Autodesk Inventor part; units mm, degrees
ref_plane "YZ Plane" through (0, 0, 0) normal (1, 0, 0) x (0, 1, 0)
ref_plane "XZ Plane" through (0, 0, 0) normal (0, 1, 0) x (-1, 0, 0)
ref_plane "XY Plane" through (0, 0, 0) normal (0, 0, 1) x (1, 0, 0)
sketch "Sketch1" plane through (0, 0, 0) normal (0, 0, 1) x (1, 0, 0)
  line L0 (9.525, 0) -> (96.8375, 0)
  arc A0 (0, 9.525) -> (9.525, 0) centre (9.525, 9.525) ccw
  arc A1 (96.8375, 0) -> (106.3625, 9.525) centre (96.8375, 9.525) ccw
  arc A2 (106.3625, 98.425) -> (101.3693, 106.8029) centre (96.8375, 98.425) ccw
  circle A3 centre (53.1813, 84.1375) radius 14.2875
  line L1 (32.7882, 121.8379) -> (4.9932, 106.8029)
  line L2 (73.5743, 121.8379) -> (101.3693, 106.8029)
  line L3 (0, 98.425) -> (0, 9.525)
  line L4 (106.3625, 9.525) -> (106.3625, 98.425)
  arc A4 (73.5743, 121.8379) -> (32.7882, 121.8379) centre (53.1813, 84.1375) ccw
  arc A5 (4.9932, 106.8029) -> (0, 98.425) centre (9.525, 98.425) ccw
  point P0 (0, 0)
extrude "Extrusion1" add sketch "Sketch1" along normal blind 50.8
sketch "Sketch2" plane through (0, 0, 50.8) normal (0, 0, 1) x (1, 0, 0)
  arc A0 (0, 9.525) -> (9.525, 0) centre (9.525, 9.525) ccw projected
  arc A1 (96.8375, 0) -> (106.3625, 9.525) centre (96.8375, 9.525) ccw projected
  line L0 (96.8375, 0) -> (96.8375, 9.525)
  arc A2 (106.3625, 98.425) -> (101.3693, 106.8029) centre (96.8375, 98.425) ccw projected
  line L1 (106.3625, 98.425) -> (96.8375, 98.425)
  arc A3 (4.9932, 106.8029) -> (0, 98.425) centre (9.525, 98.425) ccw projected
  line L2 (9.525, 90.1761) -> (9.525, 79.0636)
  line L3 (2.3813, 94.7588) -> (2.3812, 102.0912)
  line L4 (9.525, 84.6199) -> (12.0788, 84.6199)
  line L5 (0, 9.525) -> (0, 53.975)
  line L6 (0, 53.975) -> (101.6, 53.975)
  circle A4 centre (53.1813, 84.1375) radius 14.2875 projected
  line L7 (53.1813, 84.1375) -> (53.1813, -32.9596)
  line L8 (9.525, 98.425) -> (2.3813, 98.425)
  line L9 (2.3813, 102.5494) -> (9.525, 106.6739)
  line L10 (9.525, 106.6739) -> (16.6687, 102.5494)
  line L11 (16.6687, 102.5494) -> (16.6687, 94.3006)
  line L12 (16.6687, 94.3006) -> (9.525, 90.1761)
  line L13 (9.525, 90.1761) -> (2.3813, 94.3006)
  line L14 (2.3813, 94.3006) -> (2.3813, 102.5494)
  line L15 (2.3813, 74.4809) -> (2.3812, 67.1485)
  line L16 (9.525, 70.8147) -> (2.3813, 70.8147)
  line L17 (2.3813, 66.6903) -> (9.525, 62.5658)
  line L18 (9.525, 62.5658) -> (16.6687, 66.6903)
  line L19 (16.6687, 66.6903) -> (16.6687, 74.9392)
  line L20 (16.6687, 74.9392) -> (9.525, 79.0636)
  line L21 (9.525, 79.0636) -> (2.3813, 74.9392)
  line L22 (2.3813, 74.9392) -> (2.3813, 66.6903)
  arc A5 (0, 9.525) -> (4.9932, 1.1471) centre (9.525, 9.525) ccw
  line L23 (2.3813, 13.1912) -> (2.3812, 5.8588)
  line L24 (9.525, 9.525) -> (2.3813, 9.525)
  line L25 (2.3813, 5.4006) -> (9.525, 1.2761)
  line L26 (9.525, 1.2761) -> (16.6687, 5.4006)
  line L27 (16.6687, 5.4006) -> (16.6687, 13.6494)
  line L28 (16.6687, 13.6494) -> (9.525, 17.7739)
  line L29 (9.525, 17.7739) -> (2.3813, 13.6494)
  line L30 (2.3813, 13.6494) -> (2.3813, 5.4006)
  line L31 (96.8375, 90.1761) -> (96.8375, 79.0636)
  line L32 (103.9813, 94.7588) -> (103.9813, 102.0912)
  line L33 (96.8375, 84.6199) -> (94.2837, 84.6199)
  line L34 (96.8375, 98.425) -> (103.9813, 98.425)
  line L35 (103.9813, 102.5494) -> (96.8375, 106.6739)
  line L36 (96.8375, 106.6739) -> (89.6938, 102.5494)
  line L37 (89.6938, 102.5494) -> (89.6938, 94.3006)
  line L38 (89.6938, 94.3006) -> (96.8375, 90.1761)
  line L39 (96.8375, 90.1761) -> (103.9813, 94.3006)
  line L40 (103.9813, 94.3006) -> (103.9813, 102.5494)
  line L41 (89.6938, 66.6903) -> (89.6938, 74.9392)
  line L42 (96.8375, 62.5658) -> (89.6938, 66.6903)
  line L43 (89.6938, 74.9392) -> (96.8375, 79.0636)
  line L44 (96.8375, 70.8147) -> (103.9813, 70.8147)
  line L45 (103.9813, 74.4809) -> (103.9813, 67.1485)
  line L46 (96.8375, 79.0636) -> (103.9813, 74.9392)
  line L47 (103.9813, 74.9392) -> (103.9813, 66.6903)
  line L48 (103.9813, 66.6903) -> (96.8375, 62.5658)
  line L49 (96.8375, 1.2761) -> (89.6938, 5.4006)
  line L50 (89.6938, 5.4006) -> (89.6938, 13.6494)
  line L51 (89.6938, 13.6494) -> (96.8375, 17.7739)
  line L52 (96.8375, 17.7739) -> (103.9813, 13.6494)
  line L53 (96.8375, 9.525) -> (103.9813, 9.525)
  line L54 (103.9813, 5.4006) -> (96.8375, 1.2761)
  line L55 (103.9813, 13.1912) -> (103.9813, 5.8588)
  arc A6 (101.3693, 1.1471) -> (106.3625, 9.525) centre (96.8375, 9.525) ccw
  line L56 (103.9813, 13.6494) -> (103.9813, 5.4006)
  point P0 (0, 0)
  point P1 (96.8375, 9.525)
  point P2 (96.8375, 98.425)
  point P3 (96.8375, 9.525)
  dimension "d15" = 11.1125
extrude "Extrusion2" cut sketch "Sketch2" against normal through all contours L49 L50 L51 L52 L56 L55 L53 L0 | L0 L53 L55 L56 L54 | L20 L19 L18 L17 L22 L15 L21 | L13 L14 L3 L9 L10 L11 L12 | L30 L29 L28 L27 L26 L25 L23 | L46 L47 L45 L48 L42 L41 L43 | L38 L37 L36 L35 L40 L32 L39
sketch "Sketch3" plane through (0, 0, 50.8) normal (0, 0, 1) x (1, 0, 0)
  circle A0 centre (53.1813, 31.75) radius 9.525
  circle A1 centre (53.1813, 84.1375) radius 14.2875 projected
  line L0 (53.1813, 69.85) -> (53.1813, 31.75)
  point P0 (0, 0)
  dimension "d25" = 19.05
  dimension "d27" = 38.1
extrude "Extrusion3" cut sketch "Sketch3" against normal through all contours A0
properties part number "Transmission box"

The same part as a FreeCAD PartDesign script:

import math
import FreeCAD as App
import Part
import Sketcher

V = App.Vector
Q = App.Units.Quantity

doc = App.newDocument("Part")
body = doc.addObject("PartDesign::Body", "Body")

# Sketch on XY plane
sketch1 = doc.addObject("Sketcher::SketchObject", "Sketch")
body.addObject(sketch1)
sketch1.AttachmentSupport = (doc.XY_Plane, [""])
sketch1.MapMode = "FlatFace"
sketch1.addGeometry([
    Part.ArcOfCircle(Part.Circle(V(10, 10, 0), V(0, 0, 1), 10), math.radians(180), math.radians(270)),  # 0
    Part.LineSegment(V(10, 0, 0), V(97, 0, 0)),  # 1
    Part.ArcOfCircle(Part.Circle(V(97, 10, 0), V(0, 0, 1), 10), math.radians(-90), math.radians(0)),  # 2
    Part.LineSegment(V(106, 10, 0), V(106, 98, 0)),  # 3
    Part.ArcOfCircle(Part.Circle(V(97, 98, 0), V(0, 0, 1), 10), math.radians(0), math.radians(62)),  # 4
    Part.LineSegment(V(101, 107, 0), V(74, 122, 0)),  # 5
    Part.ArcOfCircle(Part.Circle(V(53, 84, 0), V(0, 0, 1), 43), math.radians(62), math.radians(118)),  # 6
    Part.LineSegment(V(33, 122, 0), V(5, 107, 0)),  # 7
    Part.ArcOfCircle(Part.Circle(V(10, 98, 0), V(0, 0, 1), 10), math.radians(118), math.radians(180)),  # 8
    Part.LineSegment(V(0, 98, 0), V(0, 10, 0)),  # 9
    Part.Circle(V(53, 84, 0), V(0, 0, 1), 14),  # 10
], False)
sketch1.addConstraint([
    Sketcher.Constraint("Tangent", 0, 2, 1, 1),
    Sketcher.Constraint("Tangent", 1, 2, 2, 1),
    Sketcher.Constraint("Tangent", 2, 2, 3, 1),
    Sketcher.Constraint("Tangent", 3, 2, 4, 1),
    Sketcher.Constraint("Tangent", 4, 2, 5, 1),
    Sketcher.Constraint("Tangent", 5, 2, 6, 1),
    Sketcher.Constraint("Tangent", 6, 2, 7, 1),
    Sketcher.Constraint("Tangent", 7, 2, 8, 1),
    Sketcher.Constraint("Tangent", 8, 2, 9, 1),
    Sketcher.Constraint("Tangent", 9, 2, 0, 1),
    Sketcher.Constraint("Horizontal", 1),
    Sketcher.Constraint("Vertical", 3),
    Sketcher.Constraint("Vertical", 9),
    Sketcher.Constraint("Coincident", 10, 3, 6, 3),
    Sketcher.Constraint("Equal", 0, 2),
    Sketcher.Constraint("Equal", 2, 4),
    Sketcher.Constraint("Equal", 4, 8),
    Sketcher.Constraint("PointOnObject", 0, 2, -1),
    Sketcher.Constraint("PointOnObject", 8, 2, -2),
    Sketcher.Constraint("Horizontal", 4, 3, 8, 3),
    Sketcher.Constraint("Horizontal", 5, 2, 6, 2),
    Sketcher.Constraint("Diameter", 10, Q("1.125 in")),
    Sketcher.Constraint("DistanceY", 3, 1, 3, 2, Q("3.5 in")),
    Sketcher.Constraint("Radius", 0, Q("0.375 in")),
    Sketcher.Constraint("Radius", 6, Q("1.6875 in")),
    Sketcher.Constraint("DistanceX", 1, 1, 1, 2, Q("3.4375 in")),
    Sketcher.Constraint("Angle", 5, Q("151.59 deg")),
])
pad1 = doc.addObject("PartDesign::Pad", "Pad")
body.addObject(pad1)
pad1.Profile = sketch1
pad1.Length = Q("2 in")

# Sketch on XY plane
sketch2 = doc.addObject("Sketcher::SketchObject", "Sketch001")
body.addObject(sketch2)
sketch2.AttachmentSupport = (doc.XY_Plane, [""])
sketch2.MapMode = "FlatFace"
sketch2.AttachmentOffset = App.Placement(V(0, 0, 2 * 25.4), App.Rotation())
sketch2.addGeometry([
    Part.LineSegment(V(89.69, 5.4, 0), V(96.84, 1.28, 0)),  # 0
    Part.LineSegment(V(96.84, 1.28, 0), V(103.98, 5.4, 0)),  # 1
    Part.LineSegment(V(103.98, 5.4, 0), V(103.98, 13.65, 0)),  # 2
    Part.LineSegment(V(103.98, 13.65, 0), V(96.84, 17.77, 0)),  # 3
    Part.LineSegment(V(96.84, 17.77, 0), V(89.69, 13.65, 0)),  # 4
    Part.LineSegment(V(89.69, 13.65, 0), V(89.69, 5.4, 0)),  # 5
    Part.LineSegment(V(16.67, 74.94, 0), V(9.53, 79.06, 0)),  # 6
    Part.LineSegment(V(9.53, 79.06, 0), V(2.38, 74.94, 0)),  # 7
    Part.LineSegment(V(2.38, 74.94, 0), V(2.38, 74.48, 0)),  # 8
    Part.LineSegment(V(2.38, 74.48, 0), V(2.38, 67.15, 0)),  # 9
    Part.LineSegment(V(2.38, 67.15, 0), V(2.38, 66.69, 0)),  # 10
    Part.LineSegment(V(2.38, 66.69, 0), V(9.53, 62.57, 0)),  # 11
    Part.LineSegment(V(9.53, 62.57, 0), V(16.67, 66.69, 0)),  # 12
    Part.LineSegment(V(16.67, 66.69, 0), V(16.67, 74.94, 0)),  # 13
    Part.LineSegment(V(2.38, 94.3, 0), V(9.53, 90.18, 0)),  # 14
    Part.LineSegment(V(9.53, 90.18, 0), V(16.67, 94.3, 0)),  # 15
    Part.LineSegment(V(16.67, 94.3, 0), V(16.67, 102.55, 0)),  # 16
    Part.LineSegment(V(16.67, 102.55, 0), V(9.53, 106.67, 0)),  # 17
    Part.LineSegment(V(9.53, 106.67, 0), V(2.38, 102.55, 0)),  # 18
    Part.LineSegment(V(2.38, 102.55, 0), V(2.38, 102.09, 0)),  # 19
    Part.LineSegment(V(2.38, 102.09, 0), V(2.38, 94.76, 0)),  # 20
    Part.LineSegment(V(2.38, 94.76, 0), V(2.38, 94.3, 0)),  # 21
    Part.LineSegment(V(2.38, 13.65, 0), V(2.38, 13.19, 0)),  # 22
    Part.LineSegment(V(2.38, 13.19, 0), V(2.38, 5.86, 0)),  # 23
    Part.LineSegment(V(2.38, 5.86, 0), V(2.38, 5.4, 0)),  # 24
    Part.LineSegment(V(2.38, 5.4, 0), V(9.53, 1.28, 0)),  # 25
    Part.LineSegment(V(9.53, 1.28, 0), V(16.67, 5.4, 0)),  # 26
    Part.LineSegment(V(16.67, 5.4, 0), V(16.67, 13.65, 0)),  # 27
    Part.LineSegment(V(16.67, 13.65, 0), V(9.53, 17.77, 0)),  # 28
    Part.LineSegment(V(9.53, 17.77, 0), V(2.38, 13.65, 0)),  # 29
    Part.LineSegment(V(103.98, 74.94, 0), V(96.84, 79.06, 0)),  # 30
    Part.LineSegment(V(96.84, 79.06, 0), V(89.69, 74.94, 0)),  # 31
    Part.LineSegment(V(89.69, 74.94, 0), V(89.69, 66.69, 0)),  # 32
    Part.LineSegment(V(89.69, 66.69, 0), V(96.84, 62.57, 0)),  # 33
    Part.LineSegment(V(96.84, 62.57, 0), V(103.98, 66.69, 0)),  # 34
    Part.LineSegment(V(103.98, 66.69, 0), V(103.98, 74.94, 0)),  # 35
    Part.LineSegment(V(89.69, 94.3, 0), V(96.84, 90.18, 0)),  # 36
    Part.LineSegment(V(96.84, 90.18, 0), V(103.98, 94.3, 0)),  # 37
    Part.LineSegment(V(103.98, 94.3, 0), V(103.98, 102.55, 0)),  # 38
    Part.LineSegment(V(103.98, 102.55, 0), V(96.84, 106.67, 0)),  # 39
    Part.LineSegment(V(96.84, 106.67, 0), V(89.69, 102.55, 0)),  # 40
    Part.LineSegment(V(89.69, 102.55, 0), V(89.69, 94.3, 0)),  # 41
], False)
sketch2.addConstraint([
    Sketcher.Constraint("Coincident", 0, 2, 1, 1),
    Sketcher.Constraint("Coincident", 1, 2, 2, 1),
    Sketcher.Constraint("Coincident", 2, 2, 3, 1),
    Sketcher.Constraint("Coincident", 3, 2, 4, 1),
    Sketcher.Constraint("Coincident", 4, 2, 5, 1),
    Sketcher.Constraint("Coincident", 5, 2, 0, 1),
    Sketcher.Constraint("Coincident", 6, 2, 7, 1),
    Sketcher.Constraint("Coincident", 7, 2, 8, 1),
    Sketcher.Constraint("Coincident", 8, 2, 9, 1),
    Sketcher.Constraint("Coincident", 9, 2, 10, 1),
    Sketcher.Constraint("Coincident", 10, 2, 11, 1),
    Sketcher.Constraint("Coincident", 11, 2, 12, 1),
    Sketcher.Constraint("Coincident", 12, 2, 13, 1),
    Sketcher.Constraint("Coincident", 13, 2, 6, 1),
    Sketcher.Constraint("Coincident", 14, 2, 15, 1),
    Sketcher.Constraint("Coincident", 15, 2, 16, 1),
    Sketcher.Constraint("Coincident", 16, 2, 17, 1),
    Sketcher.Constraint("Coincident", 17, 2, 18, 1),
    Sketcher.Constraint("Coincident", 18, 2, 19, 1),
    Sketcher.Constraint("Coincident", 19, 2, 20, 1),
    Sketcher.Constraint("Coincident", 20, 2, 21, 1),
    Sketcher.Constraint("Coincident", 21, 2, 14, 1),
    Sketcher.Constraint("Coincident", 22, 2, 23, 1),
    Sketcher.Constraint("Coincident", 23, 2, 24, 1),
    Sketcher.Constraint("Coincident", 24, 2, 25, 1),
    Sketcher.Constraint("Coincident", 25, 2, 26, 1),
    Sketcher.Constraint("Coincident", 26, 2, 27, 1),
    Sketcher.Constraint("Coincident", 27, 2, 28, 1),
    Sketcher.Constraint("Coincident", 28, 2, 29, 1),
    Sketcher.Constraint("Coincident", 29, 2, 22, 1),
    Sketcher.Constraint("Coincident", 30, 2, 31, 1),
    Sketcher.Constraint("Coincident", 31, 2, 32, 1),
    Sketcher.Constraint("Coincident", 32, 2, 33, 1),
    Sketcher.Constraint("Coincident", 33, 2, 34, 1),
    Sketcher.Constraint("Coincident", 34, 2, 35, 1),
    Sketcher.Constraint("Coincident", 35, 2, 30, 1),
    Sketcher.Constraint("Coincident", 36, 2, 37, 1),
    Sketcher.Constraint("Coincident", 37, 2, 38, 1),
    Sketcher.Constraint("Coincident", 38, 2, 39, 1),
    Sketcher.Constraint("Coincident", 39, 2, 40, 1),
    Sketcher.Constraint("Coincident", 40, 2, 41, 1),
    Sketcher.Constraint("Coincident", 41, 2, 36, 1),
    Sketcher.Constraint("Vertical", 2),
    Sketcher.Constraint("Vertical", 5),
    Sketcher.Constraint("Vertical", 8),
    Sketcher.Constraint("Vertical", 9),
    Sketcher.Constraint("Vertical", 10),
    Sketcher.Constraint("Vertical", 13),
    Sketcher.Constraint("Vertical", 16),
    Sketcher.Constraint("Vertical", 19),
    Sketcher.Constraint("Vertical", 20),
    Sketcher.Constraint("Vertical", 21),
    Sketcher.Constraint("Vertical", 22),
    Sketcher.Constraint("Vertical", 23),
    Sketcher.Constraint("Vertical", 24),
    Sketcher.Constraint("Vertical", 27),
    Sketcher.Constraint("Vertical", 32),
    Sketcher.Constraint("Vertical", 35),
    Sketcher.Constraint("Vertical", 38),
    Sketcher.Constraint("Vertical", 41),
    Sketcher.Constraint("Parallel", 0, 3),
    Sketcher.Constraint("Parallel", 1, 4),
    Sketcher.Constraint("Parallel", 3, 6),
    Sketcher.Constraint("Parallel", 4, 7),
    Sketcher.Constraint("Parallel", 6, 11),
    Sketcher.Constraint("Parallel", 7, 12),
    Sketcher.Constraint("Parallel", 11, 14),
    Sketcher.Constraint("Parallel", 12, 15),
    Sketcher.Constraint("Parallel", 14, 17),
    Sketcher.Constraint("Parallel", 15, 18),
    Sketcher.Constraint("Parallel", 17, 25),
    Sketcher.Constraint("Parallel", 18, 26),
    Sketcher.Constraint("Parallel", 25, 28),
    Sketcher.Constraint("Parallel", 26, 29),
    Sketcher.Constraint("Parallel", 28, 30),
    Sketcher.Constraint("Parallel", 29, 31),
    Sketcher.Constraint("Parallel", 30, 33),
    Sketcher.Constraint("Parallel", 31, 34),
    Sketcher.Constraint("Parallel", 33, 36),
    Sketcher.Constraint("Parallel", 34, 37),
    Sketcher.Constraint("Parallel", 36, 39),
    Sketcher.Constraint("Parallel", 37, 40),
    Sketcher.Constraint("Horizontal", 2, 2, 4, 2),
    Sketcher.Constraint("Horizontal", 1, 2, 5, 2),
    Sketcher.Constraint("Horizontal", 10, 2, 12, 2),
    Sketcher.Constraint("Horizontal", 7, 2, 13, 2),
    Sketcher.Constraint("Horizontal", 16, 2, 18, 2),
    Sketcher.Constraint("Horizontal", 15, 2, 21, 2),
    Sketcher.Constraint("Horizontal", 5, 2, 24, 2),
    Sketcher.Constraint("Horizontal", 0, 2, 25, 2),
    Sketcher.Constraint("Horizontal", 24, 2, 26, 2),
    Sketcher.Constraint("Horizontal", 4, 2, 27, 2),
    Sketcher.Constraint("Horizontal", 3, 2, 28, 2),
    Sketcher.Constraint("Horizontal", 6, 2, 30, 2),
    Sketcher.Constraint("Horizontal", 13, 2, 31, 2),
    Sketcher.Constraint("Horizontal", 12, 2, 32, 2),
    Sketcher.Constraint("Horizontal", 11, 2, 33, 2),
    Sketcher.Constraint("Horizontal", 32, 2, 34, 2),
    Sketcher.Constraint("Horizontal", 14, 2, 36, 2),
    Sketcher.Constraint("Horizontal", 21, 2, 37, 2),
    Sketcher.Constraint("Horizontal", 18, 2, 38, 2),
    Sketcher.Constraint("Horizontal", 17, 2, 39, 2),
    Sketcher.Constraint("Horizontal", 38, 2, 40, 2),
    Sketcher.Constraint("Vertical", 0, 2, 3, 2),
    Sketcher.Constraint("Vertical", 11, 2, 14, 2),
    Sketcher.Constraint("Vertical", 13, 2, 15, 2),
    Sketcher.Constraint("Vertical", 21, 2, 22, 2),
    Sketcher.Constraint("Vertical", 17, 2, 25, 2),
    Sketcher.Constraint("Vertical", 3, 2, 30, 2),
    Sketcher.Constraint("Vertical", 33, 2, 36, 2),
    Sketcher.Constraint("Equal", 8, 10),
    Sketcher.Constraint("Equal", 5, 13),
    Sketcher.Constraint("Equal", 13, 16),
    Sketcher.Constraint("Equal", 10, 19),
    Sketcher.Constraint("Equal", 9, 20),
    Sketcher.Constraint("Equal", 21, 22),
    Sketcher.Constraint("Equal", 20, 23),
    Sketcher.Constraint("Angle", 0, Q("-30.0005 deg")),
    Sketcher.Constraint("DistanceX", 7, 2, 2, 2, Q("4 in")),
    Sketcher.Constraint("DistanceY", 6, 2, 14, 2, Q("0.4375 in")),
    Sketcher.Constraint("DistanceX", -1, 1, 0, 2, Q("3.8125 in")),
    Sketcher.Constraint("DistanceX", -1, 1, 1, 2, Q("4.093752 in")),
    Sketcher.Constraint("DistanceY", 0, 2, 6, 2, Q("3.0625 in")),
    Sketcher.Constraint("DistanceY", 2, 1, 2, 2, 8.2488),
    Sketcher.Constraint("DistanceY", 8, 2, 8, 1, 0.4583),
    Sketcher.Constraint("DistanceY", -1, 1, 10, 2, Q("2.6256 in")),
])
pocket1 = doc.addObject("PartDesign::Pocket", "Pocket")
body.addObject(pocket1)
pocket1.Profile = sketch2
pocket1.Type = "ThroughAll"

# Sketch on XY plane
sketch3 = doc.addObject("Sketcher::SketchObject", "Sketch002")
body.addObject(sketch3)
sketch3.AttachmentSupport = (doc.XY_Plane, [""])
sketch3.MapMode = "FlatFace"
sketch3.AttachmentOffset = App.Placement(V(0, 0, 2 * 25.4), App.Rotation())
sketch3.addGeometry(Part.Circle(V(53, 32, 0), V(0, 0, 1), 10), False)
sketch3.addConstraint([
    Sketcher.Constraint("Diameter", 0, Q("0.75 in")),
    Sketcher.Constraint("DistanceY", -1, 1, 0, 3, Q("1.25 in")),
    Sketcher.Constraint("DistanceX", -1, 1, 0, 3, Q("2.093752 in")),
])
pocket2 = doc.addObject("PartDesign::Pocket", "Pocket001")
body.addObject(pocket2)
pocket2.Profile = sketch3
pocket2.Type = "ThroughAll"

doc.recompute()
